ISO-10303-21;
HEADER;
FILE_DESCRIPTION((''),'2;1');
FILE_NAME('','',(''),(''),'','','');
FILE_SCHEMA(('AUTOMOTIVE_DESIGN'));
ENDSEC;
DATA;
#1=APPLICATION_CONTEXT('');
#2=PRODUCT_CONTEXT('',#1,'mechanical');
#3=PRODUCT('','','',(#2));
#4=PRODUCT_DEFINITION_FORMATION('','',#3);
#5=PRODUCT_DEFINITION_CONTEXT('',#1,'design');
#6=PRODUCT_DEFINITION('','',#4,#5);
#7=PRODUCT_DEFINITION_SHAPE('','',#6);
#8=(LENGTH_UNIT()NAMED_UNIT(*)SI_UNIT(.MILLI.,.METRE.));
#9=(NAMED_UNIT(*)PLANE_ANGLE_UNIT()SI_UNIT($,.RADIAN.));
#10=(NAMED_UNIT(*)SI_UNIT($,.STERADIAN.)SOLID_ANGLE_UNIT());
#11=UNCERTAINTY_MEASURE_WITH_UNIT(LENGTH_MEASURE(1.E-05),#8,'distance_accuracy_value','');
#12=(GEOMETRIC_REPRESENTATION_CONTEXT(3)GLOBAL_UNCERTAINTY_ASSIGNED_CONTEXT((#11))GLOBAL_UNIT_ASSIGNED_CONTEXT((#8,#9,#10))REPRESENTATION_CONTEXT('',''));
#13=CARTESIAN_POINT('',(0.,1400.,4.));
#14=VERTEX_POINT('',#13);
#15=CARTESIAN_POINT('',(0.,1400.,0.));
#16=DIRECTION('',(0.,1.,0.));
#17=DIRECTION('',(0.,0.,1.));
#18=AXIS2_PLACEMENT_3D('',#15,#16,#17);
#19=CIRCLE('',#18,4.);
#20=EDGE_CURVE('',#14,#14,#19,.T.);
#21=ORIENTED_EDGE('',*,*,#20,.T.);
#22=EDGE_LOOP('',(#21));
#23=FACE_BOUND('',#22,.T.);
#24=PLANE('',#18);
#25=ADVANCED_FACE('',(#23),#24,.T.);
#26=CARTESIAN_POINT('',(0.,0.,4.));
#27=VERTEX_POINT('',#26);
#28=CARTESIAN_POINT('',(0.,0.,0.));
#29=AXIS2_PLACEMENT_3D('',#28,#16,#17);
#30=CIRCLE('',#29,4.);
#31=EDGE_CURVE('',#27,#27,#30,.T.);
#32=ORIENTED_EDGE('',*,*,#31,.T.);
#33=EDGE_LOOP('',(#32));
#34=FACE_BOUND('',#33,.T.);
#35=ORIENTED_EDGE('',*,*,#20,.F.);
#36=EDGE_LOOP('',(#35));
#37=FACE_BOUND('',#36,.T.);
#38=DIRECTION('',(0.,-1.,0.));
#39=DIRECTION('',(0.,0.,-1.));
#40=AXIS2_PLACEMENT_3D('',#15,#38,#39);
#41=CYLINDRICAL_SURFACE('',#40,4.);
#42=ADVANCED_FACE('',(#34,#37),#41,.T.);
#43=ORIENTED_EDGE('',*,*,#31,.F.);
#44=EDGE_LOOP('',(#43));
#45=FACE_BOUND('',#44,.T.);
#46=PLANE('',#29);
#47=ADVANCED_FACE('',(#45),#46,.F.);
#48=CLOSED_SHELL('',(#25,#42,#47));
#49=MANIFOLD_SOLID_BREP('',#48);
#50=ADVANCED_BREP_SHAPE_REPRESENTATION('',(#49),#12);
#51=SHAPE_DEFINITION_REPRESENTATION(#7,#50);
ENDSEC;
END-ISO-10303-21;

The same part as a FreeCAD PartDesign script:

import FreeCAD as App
import Part
import Sketcher
from FreeCAD import Vector

doc = App.newDocument("Part")
body = doc.addObject("PartDesign::Body", "Body")

# Sketch on XZ plane
sketch1 = doc.addObject("Sketcher::SketchObject", "Sketch")
body.addObject(sketch1)
sketch1.AttachmentSupport = (doc.XZ_Plane, [""])
sketch1.MapMode = "FlatFace"
sketch1.addGeometry(Part.Circle(Vector(0, 0, 0), Vector(0, 0, 1), 4), False)
sketch1.addConstraint([
    Sketcher.Constraint("Coincident", 0, 3, -1, 1),
    Sketcher.Constraint("Diameter", 0, 8.0),
])
pad1 = doc.addObject("PartDesign::Pad", "Pad")
body.addObject(pad1)
pad1.Profile = sketch1
pad1.Length = 1400
pad1.Reversed = True

doc.recompute()
